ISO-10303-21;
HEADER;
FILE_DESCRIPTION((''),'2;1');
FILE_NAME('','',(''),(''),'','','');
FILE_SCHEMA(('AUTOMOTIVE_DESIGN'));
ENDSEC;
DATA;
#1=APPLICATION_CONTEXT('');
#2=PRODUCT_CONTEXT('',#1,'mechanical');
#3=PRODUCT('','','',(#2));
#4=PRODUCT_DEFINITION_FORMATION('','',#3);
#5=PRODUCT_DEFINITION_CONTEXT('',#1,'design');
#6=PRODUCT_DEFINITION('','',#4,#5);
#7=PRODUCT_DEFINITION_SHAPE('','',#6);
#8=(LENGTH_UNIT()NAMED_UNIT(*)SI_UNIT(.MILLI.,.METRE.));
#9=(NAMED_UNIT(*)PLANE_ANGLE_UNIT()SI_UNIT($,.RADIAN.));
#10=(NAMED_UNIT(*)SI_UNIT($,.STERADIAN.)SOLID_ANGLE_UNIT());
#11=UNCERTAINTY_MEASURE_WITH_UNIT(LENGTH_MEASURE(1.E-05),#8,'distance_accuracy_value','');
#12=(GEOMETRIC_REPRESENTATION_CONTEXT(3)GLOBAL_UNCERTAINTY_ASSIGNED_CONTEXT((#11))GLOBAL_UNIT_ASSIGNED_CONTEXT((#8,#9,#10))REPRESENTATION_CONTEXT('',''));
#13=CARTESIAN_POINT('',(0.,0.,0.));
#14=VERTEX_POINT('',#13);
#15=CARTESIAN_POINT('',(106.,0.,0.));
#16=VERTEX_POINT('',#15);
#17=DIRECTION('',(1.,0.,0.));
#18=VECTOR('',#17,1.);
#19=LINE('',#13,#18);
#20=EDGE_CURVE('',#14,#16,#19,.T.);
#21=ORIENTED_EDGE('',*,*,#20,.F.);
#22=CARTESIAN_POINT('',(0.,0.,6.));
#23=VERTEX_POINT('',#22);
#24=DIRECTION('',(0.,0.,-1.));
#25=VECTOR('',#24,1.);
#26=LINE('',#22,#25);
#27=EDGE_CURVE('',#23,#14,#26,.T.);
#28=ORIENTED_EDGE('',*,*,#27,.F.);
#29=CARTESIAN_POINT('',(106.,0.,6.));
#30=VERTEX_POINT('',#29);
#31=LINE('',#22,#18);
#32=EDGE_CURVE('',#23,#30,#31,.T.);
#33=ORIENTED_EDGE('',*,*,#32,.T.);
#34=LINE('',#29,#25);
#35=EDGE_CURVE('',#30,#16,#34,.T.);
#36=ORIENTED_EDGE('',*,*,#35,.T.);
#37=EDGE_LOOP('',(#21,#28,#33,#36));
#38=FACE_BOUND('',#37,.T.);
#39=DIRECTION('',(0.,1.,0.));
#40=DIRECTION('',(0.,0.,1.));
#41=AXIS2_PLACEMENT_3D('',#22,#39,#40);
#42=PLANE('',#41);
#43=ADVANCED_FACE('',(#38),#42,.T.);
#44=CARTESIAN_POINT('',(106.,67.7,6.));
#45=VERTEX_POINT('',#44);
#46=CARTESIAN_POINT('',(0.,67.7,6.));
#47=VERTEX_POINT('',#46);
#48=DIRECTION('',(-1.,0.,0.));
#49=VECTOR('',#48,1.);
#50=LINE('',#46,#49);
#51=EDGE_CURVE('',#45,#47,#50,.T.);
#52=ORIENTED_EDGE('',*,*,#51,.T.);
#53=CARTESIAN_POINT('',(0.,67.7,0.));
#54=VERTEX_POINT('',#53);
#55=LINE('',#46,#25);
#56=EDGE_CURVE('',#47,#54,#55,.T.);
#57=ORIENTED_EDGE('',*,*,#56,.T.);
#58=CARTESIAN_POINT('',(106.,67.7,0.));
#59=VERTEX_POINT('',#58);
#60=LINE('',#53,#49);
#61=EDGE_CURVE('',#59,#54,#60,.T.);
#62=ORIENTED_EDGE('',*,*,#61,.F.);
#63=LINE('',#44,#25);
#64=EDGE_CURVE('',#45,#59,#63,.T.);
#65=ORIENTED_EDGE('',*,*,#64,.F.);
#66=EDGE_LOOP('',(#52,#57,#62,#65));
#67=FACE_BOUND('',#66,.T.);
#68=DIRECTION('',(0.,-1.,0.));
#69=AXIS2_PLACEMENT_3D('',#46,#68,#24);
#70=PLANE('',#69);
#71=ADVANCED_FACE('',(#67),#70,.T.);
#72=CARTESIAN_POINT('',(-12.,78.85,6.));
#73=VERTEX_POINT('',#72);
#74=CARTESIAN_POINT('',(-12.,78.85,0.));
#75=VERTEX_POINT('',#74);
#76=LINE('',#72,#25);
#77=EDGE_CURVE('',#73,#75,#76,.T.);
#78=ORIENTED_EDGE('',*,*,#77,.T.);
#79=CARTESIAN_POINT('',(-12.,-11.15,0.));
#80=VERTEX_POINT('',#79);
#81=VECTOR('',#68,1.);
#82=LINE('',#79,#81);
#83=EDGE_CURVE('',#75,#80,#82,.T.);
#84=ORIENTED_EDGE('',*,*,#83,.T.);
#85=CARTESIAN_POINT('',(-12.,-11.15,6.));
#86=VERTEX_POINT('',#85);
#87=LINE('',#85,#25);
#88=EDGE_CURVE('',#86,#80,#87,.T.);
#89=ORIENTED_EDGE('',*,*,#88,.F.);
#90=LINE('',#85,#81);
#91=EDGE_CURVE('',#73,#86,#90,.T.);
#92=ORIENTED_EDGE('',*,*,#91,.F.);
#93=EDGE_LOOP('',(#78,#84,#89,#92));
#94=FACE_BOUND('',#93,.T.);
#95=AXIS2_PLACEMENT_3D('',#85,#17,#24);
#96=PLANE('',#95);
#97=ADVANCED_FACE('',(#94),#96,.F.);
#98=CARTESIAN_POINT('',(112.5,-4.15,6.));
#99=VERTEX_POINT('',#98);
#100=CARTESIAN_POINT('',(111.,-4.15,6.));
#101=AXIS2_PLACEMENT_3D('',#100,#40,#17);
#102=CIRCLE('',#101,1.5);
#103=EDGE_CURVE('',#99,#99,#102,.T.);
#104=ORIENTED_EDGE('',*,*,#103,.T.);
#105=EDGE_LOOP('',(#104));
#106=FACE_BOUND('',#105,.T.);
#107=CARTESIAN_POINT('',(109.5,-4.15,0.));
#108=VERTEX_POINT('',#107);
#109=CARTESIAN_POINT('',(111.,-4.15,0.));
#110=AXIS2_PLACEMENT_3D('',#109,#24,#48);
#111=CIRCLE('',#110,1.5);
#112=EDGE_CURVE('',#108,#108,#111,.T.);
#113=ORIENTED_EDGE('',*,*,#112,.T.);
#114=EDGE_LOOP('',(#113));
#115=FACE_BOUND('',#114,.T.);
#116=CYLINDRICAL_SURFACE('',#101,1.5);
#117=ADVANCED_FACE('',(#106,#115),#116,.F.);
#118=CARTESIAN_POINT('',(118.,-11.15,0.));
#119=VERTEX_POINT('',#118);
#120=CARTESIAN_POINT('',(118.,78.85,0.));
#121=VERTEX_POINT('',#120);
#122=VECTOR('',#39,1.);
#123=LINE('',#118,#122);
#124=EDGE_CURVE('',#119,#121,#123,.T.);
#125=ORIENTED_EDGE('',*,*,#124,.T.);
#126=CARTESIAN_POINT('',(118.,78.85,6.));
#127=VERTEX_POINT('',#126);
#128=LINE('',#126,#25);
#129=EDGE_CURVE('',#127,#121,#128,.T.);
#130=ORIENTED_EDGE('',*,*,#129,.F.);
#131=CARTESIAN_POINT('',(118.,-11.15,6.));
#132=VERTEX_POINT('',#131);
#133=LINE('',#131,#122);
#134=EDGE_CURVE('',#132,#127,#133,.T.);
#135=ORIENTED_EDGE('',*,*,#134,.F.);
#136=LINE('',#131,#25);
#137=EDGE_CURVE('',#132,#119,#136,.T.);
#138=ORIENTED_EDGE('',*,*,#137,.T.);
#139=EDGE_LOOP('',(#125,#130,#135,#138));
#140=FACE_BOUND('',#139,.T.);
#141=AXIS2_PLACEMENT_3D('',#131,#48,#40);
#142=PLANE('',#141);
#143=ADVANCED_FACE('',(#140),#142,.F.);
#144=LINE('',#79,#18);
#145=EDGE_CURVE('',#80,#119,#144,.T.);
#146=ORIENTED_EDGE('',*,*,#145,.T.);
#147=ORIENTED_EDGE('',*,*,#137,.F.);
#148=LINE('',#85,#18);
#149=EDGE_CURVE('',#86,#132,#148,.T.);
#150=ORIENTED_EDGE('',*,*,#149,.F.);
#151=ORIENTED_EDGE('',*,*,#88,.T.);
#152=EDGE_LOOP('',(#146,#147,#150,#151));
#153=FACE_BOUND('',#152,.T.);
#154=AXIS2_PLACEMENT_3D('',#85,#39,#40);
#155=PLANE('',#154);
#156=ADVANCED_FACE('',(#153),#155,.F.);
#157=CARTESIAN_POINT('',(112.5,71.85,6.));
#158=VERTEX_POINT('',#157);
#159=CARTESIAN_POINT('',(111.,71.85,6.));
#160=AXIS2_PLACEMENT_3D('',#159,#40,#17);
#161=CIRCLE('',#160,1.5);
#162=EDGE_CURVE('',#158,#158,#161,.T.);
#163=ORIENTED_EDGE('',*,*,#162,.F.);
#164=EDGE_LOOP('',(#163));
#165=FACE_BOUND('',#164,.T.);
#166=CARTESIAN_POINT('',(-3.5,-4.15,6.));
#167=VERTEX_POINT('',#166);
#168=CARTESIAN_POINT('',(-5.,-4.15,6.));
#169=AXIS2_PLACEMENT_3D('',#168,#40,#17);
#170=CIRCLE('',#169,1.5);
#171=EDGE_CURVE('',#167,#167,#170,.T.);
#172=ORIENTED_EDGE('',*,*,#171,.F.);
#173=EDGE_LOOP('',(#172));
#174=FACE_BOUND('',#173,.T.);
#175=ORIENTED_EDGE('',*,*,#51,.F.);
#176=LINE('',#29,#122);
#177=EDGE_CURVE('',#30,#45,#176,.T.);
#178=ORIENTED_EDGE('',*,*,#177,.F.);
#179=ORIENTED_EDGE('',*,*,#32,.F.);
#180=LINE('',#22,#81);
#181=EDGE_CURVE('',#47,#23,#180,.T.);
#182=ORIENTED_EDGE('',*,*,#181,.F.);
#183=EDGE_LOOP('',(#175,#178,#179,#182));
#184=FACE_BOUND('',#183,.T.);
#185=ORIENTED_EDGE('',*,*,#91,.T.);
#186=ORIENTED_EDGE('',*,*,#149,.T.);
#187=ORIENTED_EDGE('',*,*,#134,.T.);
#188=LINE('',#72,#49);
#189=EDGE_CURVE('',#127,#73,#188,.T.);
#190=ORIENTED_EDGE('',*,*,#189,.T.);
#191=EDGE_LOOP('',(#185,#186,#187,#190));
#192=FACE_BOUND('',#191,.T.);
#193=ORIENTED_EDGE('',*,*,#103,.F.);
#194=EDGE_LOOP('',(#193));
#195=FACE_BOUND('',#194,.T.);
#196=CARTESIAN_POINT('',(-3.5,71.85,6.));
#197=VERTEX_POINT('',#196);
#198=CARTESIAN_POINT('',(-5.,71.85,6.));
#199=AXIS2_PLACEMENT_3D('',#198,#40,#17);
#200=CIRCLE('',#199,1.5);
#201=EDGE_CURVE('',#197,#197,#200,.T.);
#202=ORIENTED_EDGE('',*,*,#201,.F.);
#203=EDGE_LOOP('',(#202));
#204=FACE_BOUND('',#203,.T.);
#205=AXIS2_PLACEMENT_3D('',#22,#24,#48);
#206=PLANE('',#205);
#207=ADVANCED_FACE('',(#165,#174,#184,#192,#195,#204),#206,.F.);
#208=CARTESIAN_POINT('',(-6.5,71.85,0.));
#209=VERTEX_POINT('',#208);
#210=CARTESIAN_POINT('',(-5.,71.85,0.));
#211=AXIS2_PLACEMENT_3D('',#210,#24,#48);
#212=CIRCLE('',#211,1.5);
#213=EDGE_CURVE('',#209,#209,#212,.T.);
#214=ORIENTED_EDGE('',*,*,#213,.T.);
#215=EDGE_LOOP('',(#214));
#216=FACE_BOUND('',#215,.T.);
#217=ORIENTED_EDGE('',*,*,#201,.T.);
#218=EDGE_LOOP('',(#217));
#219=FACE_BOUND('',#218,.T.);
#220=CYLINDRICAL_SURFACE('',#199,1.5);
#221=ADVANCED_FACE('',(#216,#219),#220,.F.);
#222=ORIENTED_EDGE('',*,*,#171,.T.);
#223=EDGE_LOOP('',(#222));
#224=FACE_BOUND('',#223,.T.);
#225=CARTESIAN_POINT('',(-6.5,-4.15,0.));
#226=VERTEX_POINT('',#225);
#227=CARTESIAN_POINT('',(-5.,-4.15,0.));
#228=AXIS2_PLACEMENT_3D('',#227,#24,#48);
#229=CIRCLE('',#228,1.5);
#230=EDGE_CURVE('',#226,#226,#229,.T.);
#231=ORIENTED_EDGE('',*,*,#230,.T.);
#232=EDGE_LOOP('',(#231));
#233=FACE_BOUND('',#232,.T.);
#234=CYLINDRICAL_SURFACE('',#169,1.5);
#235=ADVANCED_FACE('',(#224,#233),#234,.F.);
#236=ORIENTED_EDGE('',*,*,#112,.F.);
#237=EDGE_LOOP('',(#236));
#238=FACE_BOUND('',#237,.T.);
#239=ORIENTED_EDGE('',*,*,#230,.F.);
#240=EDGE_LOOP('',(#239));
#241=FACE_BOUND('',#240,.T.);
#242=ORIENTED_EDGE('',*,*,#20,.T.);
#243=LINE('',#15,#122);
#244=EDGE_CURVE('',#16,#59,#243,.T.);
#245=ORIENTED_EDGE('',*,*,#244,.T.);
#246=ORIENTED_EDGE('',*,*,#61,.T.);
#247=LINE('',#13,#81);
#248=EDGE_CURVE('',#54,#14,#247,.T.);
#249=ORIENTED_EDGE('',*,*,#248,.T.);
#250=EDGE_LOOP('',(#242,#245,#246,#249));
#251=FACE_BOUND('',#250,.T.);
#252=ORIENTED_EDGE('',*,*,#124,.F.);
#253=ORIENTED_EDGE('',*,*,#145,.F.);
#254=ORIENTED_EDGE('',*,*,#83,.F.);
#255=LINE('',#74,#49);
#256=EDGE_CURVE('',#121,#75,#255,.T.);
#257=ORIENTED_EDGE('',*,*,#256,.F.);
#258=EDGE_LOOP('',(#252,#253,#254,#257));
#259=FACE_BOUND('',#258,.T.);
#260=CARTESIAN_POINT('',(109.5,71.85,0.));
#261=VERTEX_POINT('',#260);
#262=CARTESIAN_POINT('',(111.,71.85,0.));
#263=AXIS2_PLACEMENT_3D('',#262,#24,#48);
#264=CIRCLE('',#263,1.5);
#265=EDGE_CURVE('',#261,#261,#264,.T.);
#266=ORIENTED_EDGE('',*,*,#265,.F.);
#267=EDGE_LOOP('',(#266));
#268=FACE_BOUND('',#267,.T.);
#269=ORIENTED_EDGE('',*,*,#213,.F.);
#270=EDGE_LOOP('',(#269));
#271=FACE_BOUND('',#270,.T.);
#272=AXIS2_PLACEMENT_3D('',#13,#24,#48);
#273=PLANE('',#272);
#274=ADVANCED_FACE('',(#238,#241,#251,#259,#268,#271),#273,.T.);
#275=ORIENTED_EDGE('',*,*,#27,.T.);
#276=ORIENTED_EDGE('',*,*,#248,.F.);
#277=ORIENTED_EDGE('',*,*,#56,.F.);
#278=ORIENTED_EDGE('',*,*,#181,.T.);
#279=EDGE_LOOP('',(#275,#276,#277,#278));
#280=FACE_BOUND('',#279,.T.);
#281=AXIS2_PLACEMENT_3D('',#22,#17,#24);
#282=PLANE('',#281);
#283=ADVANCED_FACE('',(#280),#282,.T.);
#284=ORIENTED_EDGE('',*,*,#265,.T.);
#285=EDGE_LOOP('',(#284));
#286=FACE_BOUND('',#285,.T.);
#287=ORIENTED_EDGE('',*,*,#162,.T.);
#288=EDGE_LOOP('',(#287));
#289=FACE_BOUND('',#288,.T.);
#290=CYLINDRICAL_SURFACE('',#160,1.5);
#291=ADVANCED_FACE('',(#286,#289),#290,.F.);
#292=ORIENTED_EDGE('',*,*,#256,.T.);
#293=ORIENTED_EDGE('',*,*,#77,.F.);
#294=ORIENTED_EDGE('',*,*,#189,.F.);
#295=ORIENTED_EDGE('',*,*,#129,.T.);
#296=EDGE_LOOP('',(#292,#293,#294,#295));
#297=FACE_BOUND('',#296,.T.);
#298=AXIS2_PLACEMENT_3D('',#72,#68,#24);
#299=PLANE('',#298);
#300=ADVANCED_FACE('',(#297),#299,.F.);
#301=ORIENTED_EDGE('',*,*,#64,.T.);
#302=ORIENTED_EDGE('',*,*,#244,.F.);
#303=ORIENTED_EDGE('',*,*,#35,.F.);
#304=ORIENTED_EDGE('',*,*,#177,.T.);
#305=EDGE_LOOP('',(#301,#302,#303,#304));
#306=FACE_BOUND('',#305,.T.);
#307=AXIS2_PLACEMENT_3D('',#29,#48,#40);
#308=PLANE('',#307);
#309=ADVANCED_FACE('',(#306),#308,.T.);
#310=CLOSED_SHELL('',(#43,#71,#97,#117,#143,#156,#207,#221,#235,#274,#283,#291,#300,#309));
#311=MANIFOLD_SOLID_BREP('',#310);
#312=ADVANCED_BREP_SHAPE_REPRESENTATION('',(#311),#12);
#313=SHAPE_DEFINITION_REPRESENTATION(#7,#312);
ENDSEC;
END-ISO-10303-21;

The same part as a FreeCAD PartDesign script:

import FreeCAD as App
import Part
import Sketcher

doc = App.newDocument("Part")
body = doc.addObject("PartDesign::Body", "Body")

sketch1 = body.newObject("Sketcher::SketchObject", "Sketch")
sketch1.AttachmentSupport = (doc.getObject("XY_Plane"), [""])
sketch1.MapMode = "FlatFace"
sketch1.addGeometry(Part.LineSegment(App.Vector(-12, 79, 0), App.Vector(-12, -11, 0)), False)
sketch1.addGeometry(Part.LineSegment(App.Vector(-12, -11, 0), App.Vector(118, -11, 0)), False)
sketch1.addGeometry(Part.LineSegment(App.Vector(118, -11, 0), App.Vector(118, 79, 0)), False)
sketch1.addGeometry(Part.LineSegment(App.Vector(118, 79, 0), App.Vector(-12, 79, 0)), False)
sketch1.addGeometry(Part.LineSegment(App.Vector(106, 0, 0), App.Vector(0, 0, 0)), False)
sketch1.addGeometry(Part.LineSegment(App.Vector(0, 0, 0), App.Vector(0, 68, 0)), False)
sketch1.addGeometry(Part.LineSegment(App.Vector(0, 68, 0), App.Vector(106, 68, 0)), False)
sketch1.addGeometry(Part.LineSegment(App.Vector(106, 68, 0), App.Vector(106, 0, 0)), False)
sketch1.addConstraint(Sketcher.Constraint("Coincident", 0, 2, 1, 1))
sketch1.addConstraint(Sketcher.Constraint("Coincident", 1, 2, 2, 1))
sketch1.addConstraint(Sketcher.Constraint("Coincident", 2, 2, 3, 1))
sketch1.addConstraint(Sketcher.Constraint("Coincident", 3, 2, 0, 1))
sketch1.addConstraint(Sketcher.Constraint("Coincident", 4, 2, 5, 1))
sketch1.addConstraint(Sketcher.Constraint("Coincident", 5, 2, 6, 1))
sketch1.addConstraint(Sketcher.Constraint("Coincident", 6, 2, 7, 1))
sketch1.addConstraint(Sketcher.Constraint("Coincident", 7, 2, 4, 1))
sketch1.addConstraint(Sketcher.Constraint("Vertical", 0))
sketch1.addConstraint(Sketcher.Constraint("Horizontal", 1))
sketch1.addConstraint(Sketcher.Constraint("Vertical", 2))
sketch1.addConstraint(Sketcher.Constraint("Horizontal", 3))
sketch1.addConstraint(Sketcher.Constraint("Horizontal", 4))
sketch1.addConstraint(Sketcher.Constraint("Vertical", 5))
sketch1.addConstraint(Sketcher.Constraint("Horizontal", 6))
sketch1.addConstraint(Sketcher.Constraint("Vertical", 7))
sketch1.addConstraint(Sketcher.Constraint("Coincident", 4, 2, -1, 1))
sketch1.addConstraint(Sketcher.Constraint("DistanceX", 1, 1, 1, 2, 130.0))
sketch1.addConstraint(Sketcher.Constraint("DistanceX", 4, 2, 4, 1, 106.0))
sketch1.addConstraint(Sketcher.Constraint("DistanceY", 0, 2, 0, 1, 90.0))
sketch1.addConstraint(Sketcher.Constraint("DistanceY", 5, 1, 5, 2, 67.7))
sketch1.addConstraint(Sketcher.Constraint("DistanceX", 0, 2, -1, 1, 12.0))
sketch1.addConstraint(Sketcher.Constraint("DistanceY", 0, 2, -1, 1, 11.15))
pad1 = body.newObject("PartDesign::Pad", "Pad")
pad1.Profile = sketch1
pad1.Length = 6

sketch2 = body.newObject("Sketcher::SketchObject", "Sketch001")
sketch2.AttachmentSupport = (doc.getObject("XY_Plane"), [""])
sketch2.MapMode = "FlatFace"
sketch2.AttachmentOffset = App.Placement(App.Vector(0, 0, 6), App.Rotation())
sketch2.addGeometry(Part.Circle(App.Vector(111, 71.8, 0), App.Vector(0, 0, 1), 1.5), False)
sketch2.addGeometry(Part.Circle(App.Vector(111, -4.2, 0), App.Vector(0, 0, 1), 1.5), False)
sketch2.addGeometry(Part.Circle(App.Vector(-5, -4.2, 0), App.Vector(0, 0, 1), 1.5), False)
sketch2.addGeometry(Part.Circle(App.Vector(-5, 71.8, 0), App.Vector(0, 0, 1), 1.5), False)
sketch2.addConstraint(Sketcher.Constraint("Equal", 0, 1))
sketch2.addConstraint(Sketcher.Constraint("Equal", 1, 2))
sketch2.addConstraint(Sketcher.Constraint("Equal", 2, 3))
sketch2.addConstraint(Sketcher.Constraint("Horizontal", 1, 3, 2, 3))
sketch2.addConstraint(Sketcher.Constraint("Horizontal", 0, 3, 3, 3))
sketch2.addConstraint(Sketcher.Constraint("Vertical", 0, 3, 1, 3))
sketch2.addConstraint(Sketcher.Constraint("Vertical", 2, 3, 3, 3))
sketch2.addConstraint(Sketcher.Constraint("Diameter", 0, 3.0))
sketch2.addConstraint(Sketcher.Constraint("DistanceX", -1, 1, 0, 3, 111.0))
sketch2.addConstraint(Sketcher.Constraint("DistanceX", 2, 3, -1, 1, 5.0))
sketch2.addConstraint(Sketcher.Constraint("DistanceY", 1, 3, 0, 3, 76.0))
sketch2.addConstraint(Sketcher.Constraint("DistanceY", -1, 1, 0, 3, 71.85))
doc.recompute()
hole = body.newObject("PartDesign::Hole", "Hole")
hole.Profile = sketch2
hole.ThreadType = "None"
hole.Diameter = 3
hole.DepthType = "ThroughAll"

doc.recompute()
